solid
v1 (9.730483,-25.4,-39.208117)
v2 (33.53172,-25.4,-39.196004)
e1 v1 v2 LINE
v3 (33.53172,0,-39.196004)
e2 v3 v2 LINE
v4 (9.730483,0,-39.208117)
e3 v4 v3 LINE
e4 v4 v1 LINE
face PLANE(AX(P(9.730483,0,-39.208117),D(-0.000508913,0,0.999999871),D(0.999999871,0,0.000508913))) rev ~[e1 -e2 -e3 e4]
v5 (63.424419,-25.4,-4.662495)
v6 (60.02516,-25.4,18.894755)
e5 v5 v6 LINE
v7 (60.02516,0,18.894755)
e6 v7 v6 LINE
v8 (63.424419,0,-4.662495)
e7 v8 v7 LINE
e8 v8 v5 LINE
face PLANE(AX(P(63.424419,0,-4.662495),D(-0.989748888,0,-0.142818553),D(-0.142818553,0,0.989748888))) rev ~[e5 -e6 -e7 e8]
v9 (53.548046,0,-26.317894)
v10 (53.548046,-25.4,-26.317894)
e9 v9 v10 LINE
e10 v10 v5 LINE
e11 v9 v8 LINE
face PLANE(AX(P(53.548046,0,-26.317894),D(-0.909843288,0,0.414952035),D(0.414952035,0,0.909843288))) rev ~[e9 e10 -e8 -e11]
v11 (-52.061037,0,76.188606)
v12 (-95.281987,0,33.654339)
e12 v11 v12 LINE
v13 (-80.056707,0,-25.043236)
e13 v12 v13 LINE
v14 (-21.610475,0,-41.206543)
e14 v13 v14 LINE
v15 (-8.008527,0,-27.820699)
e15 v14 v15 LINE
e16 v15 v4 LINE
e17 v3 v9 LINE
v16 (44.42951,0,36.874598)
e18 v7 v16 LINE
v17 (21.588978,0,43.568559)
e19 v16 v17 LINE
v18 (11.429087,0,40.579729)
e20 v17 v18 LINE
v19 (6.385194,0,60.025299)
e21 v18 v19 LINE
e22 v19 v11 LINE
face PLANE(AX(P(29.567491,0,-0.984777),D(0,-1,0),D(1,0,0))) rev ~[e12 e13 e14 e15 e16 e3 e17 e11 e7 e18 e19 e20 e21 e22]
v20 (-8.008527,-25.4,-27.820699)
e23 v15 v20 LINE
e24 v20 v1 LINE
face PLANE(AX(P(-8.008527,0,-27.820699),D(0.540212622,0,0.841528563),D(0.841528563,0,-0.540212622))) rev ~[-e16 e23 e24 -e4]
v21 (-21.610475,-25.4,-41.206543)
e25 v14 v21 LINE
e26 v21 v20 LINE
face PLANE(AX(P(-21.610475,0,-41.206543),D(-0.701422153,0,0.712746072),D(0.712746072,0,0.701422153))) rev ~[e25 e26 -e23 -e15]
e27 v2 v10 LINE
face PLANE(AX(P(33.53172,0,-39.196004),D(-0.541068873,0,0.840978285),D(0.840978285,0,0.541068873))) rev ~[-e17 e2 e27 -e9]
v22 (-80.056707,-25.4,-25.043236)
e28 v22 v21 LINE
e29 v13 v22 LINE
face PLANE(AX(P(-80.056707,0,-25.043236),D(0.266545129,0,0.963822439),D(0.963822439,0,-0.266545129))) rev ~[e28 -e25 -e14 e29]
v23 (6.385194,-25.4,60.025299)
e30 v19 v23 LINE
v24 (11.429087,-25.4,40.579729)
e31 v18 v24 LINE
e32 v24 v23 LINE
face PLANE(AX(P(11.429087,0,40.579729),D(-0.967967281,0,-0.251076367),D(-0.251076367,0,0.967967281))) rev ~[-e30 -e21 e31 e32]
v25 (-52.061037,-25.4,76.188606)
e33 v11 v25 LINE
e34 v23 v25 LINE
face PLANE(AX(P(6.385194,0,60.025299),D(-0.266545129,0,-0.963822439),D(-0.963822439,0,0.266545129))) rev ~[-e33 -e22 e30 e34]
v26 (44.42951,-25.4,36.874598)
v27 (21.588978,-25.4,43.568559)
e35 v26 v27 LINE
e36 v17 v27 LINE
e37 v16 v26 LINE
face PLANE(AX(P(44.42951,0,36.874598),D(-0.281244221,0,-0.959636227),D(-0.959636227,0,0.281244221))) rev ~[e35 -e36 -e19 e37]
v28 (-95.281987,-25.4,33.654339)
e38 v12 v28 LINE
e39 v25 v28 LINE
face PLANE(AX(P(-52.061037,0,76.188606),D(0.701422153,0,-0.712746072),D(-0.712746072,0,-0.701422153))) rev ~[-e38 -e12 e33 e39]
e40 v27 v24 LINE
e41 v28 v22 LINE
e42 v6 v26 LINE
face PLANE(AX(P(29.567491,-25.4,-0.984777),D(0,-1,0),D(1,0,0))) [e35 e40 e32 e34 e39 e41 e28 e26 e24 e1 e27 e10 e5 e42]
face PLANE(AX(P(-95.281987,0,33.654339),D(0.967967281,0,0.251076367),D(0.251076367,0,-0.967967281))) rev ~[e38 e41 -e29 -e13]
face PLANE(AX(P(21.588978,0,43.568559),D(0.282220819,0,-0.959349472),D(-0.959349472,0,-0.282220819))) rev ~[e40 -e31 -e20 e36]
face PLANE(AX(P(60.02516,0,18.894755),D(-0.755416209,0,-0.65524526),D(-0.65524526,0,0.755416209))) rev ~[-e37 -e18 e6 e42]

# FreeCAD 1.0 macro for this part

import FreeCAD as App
import Part
import Sketcher
from FreeCAD import Vector
Q = App.Units.Quantity

doc = App.newDocument("Part")
body = doc.addObject("PartDesign::Body", "Body")

# Sketch on XZ plane
sketch1 = body.newObject("Sketcher::SketchObject", "Sketch")
sketch1.AttachmentSupport = (doc.getObject("XZ_Plane"), [""])
sketch1.MapMode = "FlatFace"
sketch1.addGeometry(Part.LineSegment(Vector(-8, -28, 0), Vector(10, -39, 0)), False)
sketch1.addGeometry(Part.LineSegment(Vector(10, -39, 0), Vector(34, -39, 0)), False)
sketch1.addGeometry(Part.LineSegment(Vector(34, -39, 0), Vector(54, -26, 0)), False)
sketch1.addGeometry(Part.LineSegment(Vector(54, -26, 0), Vector(63, -5, 0)), False)
sketch1.addGeometry(Part.LineSegment(Vector(63, -5, 0), Vector(60, 19, 0)), False)
sketch1.addGeometry(Part.LineSegment(Vector(60, 19, 0), Vector(44, 37, 0)), False)
sketch1.addGeometry(Part.LineSegment(Vector(44, 37, 0), Vector(22, 44, 0)), False)
sketch1.addGeometry(Part.LineSegment(Vector(22, 44, 0), Vector(11, 41, 0)), False)
sketch1.addGeometry(Part.LineSegment(Vector(11, 41, 0), Vector(6, 60, 0)), False)
sketch1.addGeometry(Part.LineSegment(Vector(6, 60, 0), Vector(-52, 76, 0)), False)
sketch1.addGeometry(Part.LineSegment(Vector(-52, 76, 0), Vector(-95, 34, 0)), False)
sketch1.addGeometry(Part.LineSegment(Vector(-95, 34, 0), Vector(-80, -25, 0)), False)
sketch1.addGeometry(Part.LineSegment(Vector(-80, -25, 0), Vector(-22, -41, 0)), False)
sketch1.addGeometry(Part.LineSegment(Vector(-22, -41, 0), Vector(-8, -28, 0)), False)
sketch1.addConstraint(Sketcher.Constraint("Coincident", 0, 2, 1, 1))
sketch1.addConstraint(Sketcher.Constraint("Coincident", 1, 2, 2, 1))
sketch1.addConstraint(Sketcher.Constraint("Coincident", 2, 2, 3, 1))
sketch1.addConstraint(Sketcher.Constraint("Coincident", 3, 2, 4, 1))
sketch1.addConstraint(Sketcher.Constraint("Coincident", 4, 2, 5, 1))
sketch1.addConstraint(Sketcher.Constraint("Coincident", 5, 2, 6, 1))
sketch1.addConstraint(Sketcher.Constraint("Coincident", 6, 2, 7, 1))
sketch1.addConstraint(Sketcher.Constraint("Coincident", 7, 2, 8, 1))
sketch1.addConstraint(Sketcher.Constraint("Coincident", 8, 2, 9, 1))
sketch1.addConstraint(Sketcher.Constraint("Coincident", 9, 2, 10, 1))
sketch1.addConstraint(Sketcher.Constraint("Coincident", 10, 2, 11, 1))
sketch1.addConstraint(Sketcher.Constraint("Coincident", 11, 2, 12, 1))
sketch1.addConstraint(Sketcher.Constraint("Coincident", 12, 2, 13, 1))
sketch1.addConstraint(Sketcher.Constraint("Coincident", 13, 2, 0, 1))
sketch1.addConstraint(Sketcher.Constraint("Parallel", 8, 11))
sketch1.addConstraint(Sketcher.Constraint("Parallel", 9, 12))
sketch1.addConstraint(Sketcher.Constraint("Parallel", 10, 13))
sketch1.addConstraint(Sketcher.Constraint("Equal", 1, 2))
sketch1.addConstraint(Sketcher.Constraint("Equal", 2, 3))
sketch1.addConstraint(Sketcher.Constraint("Equal", 3, 4))
sketch1.addConstraint(Sketcher.Constraint("Equal", 4, 5))
sketch1.addConstraint(Sketcher.Constraint("Equal", 5, 6))
sketch1.addConstraint(Sketcher.Constraint("Equal", 9, 10))
sketch1.addConstraint(Sketcher.Constraint("Equal", 10, 11))
sketch1.addConstraint(Sketcher.Constraint("Equal", 11, 12))
sketch1.addConstraint(Sketcher.Constraint("DistanceY", -1, 1, 8, 2, 60.025299))
sketch1.addConstraint(Sketcher.Constraint("DistanceY", 13, 2, -1, 1, 27.820699))
sketch1.addConstraint(Sketcher.Constraint("DistanceY", 2, 2, 3, 2, 21.655398))
sketch1.addConstraint(Sketcher.Constraint("DistanceX", 1, 2, 3, 2, 29.892699))
sketch1.addConstraint(Sketcher.Constraint("DistanceY", 1, 2, 5, 2, 76.070602))
sketch1.addConstraint(Sketcher.Constraint("DistanceY", 5, 2, 8, 2, 23.150701))
sketch1.addConstraint(Sketcher.Constraint("Distance", 0, 21.07951))
sketch1.addConstraint(Sketcher.Constraint("Distance", 1, 23.80124))
sketch1.addConstraint(Sketcher.Constraint("Distance", 9, 60.64004))
sketch1.addConstraint(Sketcher.Constraint("DistanceX", -1, 1, 1, 2, 33.53172))
sketch1.addConstraint(Sketcher.Constraint("DistanceX", -1, 1, 4, 2, 60.02516))
sketch1.addConstraint(Sketcher.Constraint("DistanceX", -1, 1, 6, 2, 21.588978))
sketch1.addConstraint(Sketcher.Constraint("DistanceY", -1, 1, 7, 2, 40.579729))
sketch1.addConstraint(Sketcher.Constraint("DistanceY", -1, 1, 10, 2, 33.654339))
sketch1.addConstraint(Sketcher.Constraint("DistanceY", 0, 2, 3, 2, 34.545621))
sketch1.addConstraint(Sketcher.Constraint("DistanceX", 7, 2, 6, 2, 10.159891))
sketch1.addConstraint(Sketcher.Constraint("DistanceX", 9, 2, 8, 2, 58.446231))
pad1 = body.newObject("PartDesign::Pad", "Pad")
pad1.Profile = sketch1
pad1.Length = Q("1 in")

doc.recompute()
